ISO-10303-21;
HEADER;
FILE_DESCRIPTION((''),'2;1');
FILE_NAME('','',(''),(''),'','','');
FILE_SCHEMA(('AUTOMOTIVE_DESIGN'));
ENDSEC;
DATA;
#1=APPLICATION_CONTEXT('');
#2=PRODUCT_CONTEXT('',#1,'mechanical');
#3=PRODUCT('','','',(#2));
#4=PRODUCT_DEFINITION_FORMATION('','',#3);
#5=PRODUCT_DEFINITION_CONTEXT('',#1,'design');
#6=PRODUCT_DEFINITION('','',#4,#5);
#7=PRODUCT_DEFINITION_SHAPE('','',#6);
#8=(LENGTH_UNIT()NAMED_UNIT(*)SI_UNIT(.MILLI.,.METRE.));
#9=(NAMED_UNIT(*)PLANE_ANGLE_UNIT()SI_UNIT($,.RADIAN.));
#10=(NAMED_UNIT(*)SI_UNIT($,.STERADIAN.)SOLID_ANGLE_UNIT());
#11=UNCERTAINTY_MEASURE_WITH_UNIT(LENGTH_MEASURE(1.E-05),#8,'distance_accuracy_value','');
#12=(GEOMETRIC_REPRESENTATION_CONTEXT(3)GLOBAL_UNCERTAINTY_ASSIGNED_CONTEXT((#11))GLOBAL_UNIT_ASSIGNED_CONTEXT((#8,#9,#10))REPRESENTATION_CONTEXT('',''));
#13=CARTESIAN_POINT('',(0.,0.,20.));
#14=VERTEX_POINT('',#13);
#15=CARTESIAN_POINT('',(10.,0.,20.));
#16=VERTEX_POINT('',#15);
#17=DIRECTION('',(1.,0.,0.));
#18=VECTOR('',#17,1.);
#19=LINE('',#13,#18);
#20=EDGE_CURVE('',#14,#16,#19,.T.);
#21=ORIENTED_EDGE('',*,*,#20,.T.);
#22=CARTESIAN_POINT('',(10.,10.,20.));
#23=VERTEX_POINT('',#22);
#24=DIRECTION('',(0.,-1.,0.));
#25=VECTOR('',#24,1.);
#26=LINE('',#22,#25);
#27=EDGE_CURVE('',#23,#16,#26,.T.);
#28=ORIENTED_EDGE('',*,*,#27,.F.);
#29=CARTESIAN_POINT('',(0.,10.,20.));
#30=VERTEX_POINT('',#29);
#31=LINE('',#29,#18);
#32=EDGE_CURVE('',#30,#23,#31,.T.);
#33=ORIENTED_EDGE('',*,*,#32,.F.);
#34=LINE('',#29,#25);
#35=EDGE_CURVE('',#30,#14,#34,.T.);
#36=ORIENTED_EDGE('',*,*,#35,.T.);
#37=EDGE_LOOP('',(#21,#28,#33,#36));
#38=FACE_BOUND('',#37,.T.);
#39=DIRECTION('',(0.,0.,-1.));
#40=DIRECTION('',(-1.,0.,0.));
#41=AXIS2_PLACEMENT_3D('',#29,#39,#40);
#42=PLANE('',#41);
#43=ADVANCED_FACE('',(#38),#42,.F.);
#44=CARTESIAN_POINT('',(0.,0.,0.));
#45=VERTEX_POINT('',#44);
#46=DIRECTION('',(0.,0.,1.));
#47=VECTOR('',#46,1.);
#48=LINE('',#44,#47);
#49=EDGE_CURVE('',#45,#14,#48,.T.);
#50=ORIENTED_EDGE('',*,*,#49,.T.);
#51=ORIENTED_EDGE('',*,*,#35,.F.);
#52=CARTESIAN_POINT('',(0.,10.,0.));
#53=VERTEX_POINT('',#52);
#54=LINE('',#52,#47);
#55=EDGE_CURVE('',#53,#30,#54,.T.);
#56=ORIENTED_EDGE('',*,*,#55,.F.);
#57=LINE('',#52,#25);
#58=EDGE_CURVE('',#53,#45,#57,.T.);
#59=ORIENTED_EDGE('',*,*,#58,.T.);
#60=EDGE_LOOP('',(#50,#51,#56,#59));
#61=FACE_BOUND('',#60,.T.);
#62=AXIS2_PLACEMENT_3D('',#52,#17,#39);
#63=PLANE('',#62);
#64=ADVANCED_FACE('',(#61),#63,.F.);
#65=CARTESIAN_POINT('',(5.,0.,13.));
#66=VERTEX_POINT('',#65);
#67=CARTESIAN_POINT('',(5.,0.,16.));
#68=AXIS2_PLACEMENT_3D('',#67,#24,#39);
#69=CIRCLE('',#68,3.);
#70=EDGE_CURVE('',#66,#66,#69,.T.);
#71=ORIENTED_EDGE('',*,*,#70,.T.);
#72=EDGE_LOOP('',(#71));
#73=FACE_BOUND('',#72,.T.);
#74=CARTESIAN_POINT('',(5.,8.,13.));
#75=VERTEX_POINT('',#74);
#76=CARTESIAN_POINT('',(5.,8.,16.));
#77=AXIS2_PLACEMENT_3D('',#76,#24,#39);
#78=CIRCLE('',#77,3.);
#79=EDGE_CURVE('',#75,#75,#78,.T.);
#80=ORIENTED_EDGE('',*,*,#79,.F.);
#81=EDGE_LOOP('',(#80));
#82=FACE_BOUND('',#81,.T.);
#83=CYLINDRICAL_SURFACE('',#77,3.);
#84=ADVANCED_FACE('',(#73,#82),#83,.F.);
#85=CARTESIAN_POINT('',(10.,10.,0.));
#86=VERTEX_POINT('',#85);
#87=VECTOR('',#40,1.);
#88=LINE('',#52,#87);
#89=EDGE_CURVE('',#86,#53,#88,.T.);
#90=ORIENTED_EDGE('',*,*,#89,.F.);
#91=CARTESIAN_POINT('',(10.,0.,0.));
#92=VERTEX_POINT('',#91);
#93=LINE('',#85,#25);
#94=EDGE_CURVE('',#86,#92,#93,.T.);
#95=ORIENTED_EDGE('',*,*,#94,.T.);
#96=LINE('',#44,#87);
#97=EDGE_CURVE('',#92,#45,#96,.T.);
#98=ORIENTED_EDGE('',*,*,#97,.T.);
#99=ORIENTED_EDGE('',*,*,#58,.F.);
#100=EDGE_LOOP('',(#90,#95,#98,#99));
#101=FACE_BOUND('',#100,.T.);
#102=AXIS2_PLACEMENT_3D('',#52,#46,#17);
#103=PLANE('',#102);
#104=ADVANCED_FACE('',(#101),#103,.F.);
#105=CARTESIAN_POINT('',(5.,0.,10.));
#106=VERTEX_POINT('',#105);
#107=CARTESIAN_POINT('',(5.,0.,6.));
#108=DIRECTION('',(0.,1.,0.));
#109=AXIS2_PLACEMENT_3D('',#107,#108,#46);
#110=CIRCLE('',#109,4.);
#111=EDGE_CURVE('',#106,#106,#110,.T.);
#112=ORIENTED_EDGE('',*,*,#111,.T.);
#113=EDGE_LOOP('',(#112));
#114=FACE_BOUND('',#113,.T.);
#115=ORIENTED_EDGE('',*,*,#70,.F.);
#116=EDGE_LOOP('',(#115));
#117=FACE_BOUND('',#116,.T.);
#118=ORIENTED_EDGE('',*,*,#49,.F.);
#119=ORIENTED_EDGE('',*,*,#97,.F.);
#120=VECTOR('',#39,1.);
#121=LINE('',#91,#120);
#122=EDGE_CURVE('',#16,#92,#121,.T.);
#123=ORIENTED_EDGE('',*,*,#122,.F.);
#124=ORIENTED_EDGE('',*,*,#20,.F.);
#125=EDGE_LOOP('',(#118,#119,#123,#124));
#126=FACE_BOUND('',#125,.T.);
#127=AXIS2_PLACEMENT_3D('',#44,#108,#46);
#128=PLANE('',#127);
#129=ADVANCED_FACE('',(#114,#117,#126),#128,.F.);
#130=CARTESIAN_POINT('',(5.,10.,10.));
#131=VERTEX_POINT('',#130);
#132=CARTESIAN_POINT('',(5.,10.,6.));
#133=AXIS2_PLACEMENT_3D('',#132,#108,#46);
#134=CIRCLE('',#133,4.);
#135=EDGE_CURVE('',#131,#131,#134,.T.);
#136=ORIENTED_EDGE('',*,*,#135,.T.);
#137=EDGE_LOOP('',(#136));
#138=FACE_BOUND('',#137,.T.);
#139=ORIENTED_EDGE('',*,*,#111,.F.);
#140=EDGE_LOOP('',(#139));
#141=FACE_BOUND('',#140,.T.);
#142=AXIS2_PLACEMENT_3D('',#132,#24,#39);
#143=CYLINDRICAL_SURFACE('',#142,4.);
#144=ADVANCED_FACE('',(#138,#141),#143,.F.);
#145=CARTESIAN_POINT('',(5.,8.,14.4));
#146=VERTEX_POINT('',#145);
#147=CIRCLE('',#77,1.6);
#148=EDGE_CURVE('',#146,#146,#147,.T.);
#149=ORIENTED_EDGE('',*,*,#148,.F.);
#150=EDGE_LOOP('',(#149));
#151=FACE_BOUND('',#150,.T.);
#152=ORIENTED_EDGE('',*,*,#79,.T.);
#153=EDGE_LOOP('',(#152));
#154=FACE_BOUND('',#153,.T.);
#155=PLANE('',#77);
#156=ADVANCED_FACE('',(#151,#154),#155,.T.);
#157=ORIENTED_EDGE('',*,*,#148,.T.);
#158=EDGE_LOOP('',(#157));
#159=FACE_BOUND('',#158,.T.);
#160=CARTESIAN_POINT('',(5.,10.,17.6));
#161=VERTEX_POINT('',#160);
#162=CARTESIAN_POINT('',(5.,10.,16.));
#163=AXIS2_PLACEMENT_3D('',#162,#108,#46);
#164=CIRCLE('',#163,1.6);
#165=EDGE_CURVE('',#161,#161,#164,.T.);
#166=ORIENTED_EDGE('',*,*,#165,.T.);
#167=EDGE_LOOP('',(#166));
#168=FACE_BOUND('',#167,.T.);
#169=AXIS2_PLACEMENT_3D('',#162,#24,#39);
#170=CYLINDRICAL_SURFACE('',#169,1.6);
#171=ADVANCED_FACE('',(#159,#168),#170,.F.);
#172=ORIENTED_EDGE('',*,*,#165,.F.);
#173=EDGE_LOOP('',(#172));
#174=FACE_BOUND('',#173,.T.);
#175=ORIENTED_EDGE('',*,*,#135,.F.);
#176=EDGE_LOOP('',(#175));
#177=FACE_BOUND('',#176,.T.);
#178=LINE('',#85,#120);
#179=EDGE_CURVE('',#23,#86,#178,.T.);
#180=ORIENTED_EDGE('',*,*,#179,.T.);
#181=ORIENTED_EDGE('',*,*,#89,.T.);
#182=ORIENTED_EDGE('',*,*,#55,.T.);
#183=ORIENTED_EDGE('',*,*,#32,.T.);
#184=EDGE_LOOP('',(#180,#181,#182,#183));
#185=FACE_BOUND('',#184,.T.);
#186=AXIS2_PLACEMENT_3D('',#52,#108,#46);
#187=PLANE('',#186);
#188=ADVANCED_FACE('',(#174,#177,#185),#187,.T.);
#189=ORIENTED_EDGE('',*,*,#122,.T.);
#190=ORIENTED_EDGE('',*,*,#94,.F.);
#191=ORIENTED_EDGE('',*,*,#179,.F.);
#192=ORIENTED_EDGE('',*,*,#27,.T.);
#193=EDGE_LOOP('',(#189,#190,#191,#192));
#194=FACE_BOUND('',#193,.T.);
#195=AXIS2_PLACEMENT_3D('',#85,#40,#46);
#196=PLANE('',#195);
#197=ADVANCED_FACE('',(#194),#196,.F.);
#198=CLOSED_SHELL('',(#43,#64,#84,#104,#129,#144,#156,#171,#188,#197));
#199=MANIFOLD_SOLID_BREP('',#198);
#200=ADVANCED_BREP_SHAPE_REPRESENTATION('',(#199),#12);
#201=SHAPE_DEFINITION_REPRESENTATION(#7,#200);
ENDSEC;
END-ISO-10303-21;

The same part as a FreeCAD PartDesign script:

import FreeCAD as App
import Part
import Sketcher
from FreeCAD import Vector
Q = App.Units.Quantity

doc = App.newDocument("Part")
body = doc.addObject("PartDesign::Body", "Body")

# Sketch on XZ plane
sketch1 = doc.addObject("Sketcher::SketchObject", "Sketch")
body.addObject(sketch1)
sketch1.AttachmentSupport = (doc.XZ_Plane, [""])
sketch1.MapMode = "FlatFace"
sketch1.addGeometry([
    Part.LineSegment(Vector(0, 0, 0), Vector(0, 20, 0)),  # 0
    Part.LineSegment(Vector(0, 20, 0), Vector(10, 20, 0)),  # 1
    Part.LineSegment(Vector(10, 20, 0), Vector(10, 0, 0)),  # 2
    Part.LineSegment(Vector(10, 0, 0), Vector(0, 0, 0)),  # 3
    Part.Circle(Vector(5, 16, 0), Vector(0, 0, 1), 1.6),  # 4
    Part.Circle(Vector(5, 6, 0), Vector(0, 0, 1), 4),  # 5
], False)
sketch1.addConstraint([
    Sketcher.Constraint("Coincident", 0, 2, 1, 1),
    Sketcher.Constraint("Coincident", 1, 2, 2, 1),
    Sketcher.Constraint("Coincident", 2, 2, 3, 1),
    Sketcher.Constraint("Coincident", 3, 2, 0, 1),
    Sketcher.Constraint("Vertical", 0),
    Sketcher.Constraint("Horizontal", 1),
    Sketcher.Constraint("Vertical", 2),
    Sketcher.Constraint("Horizontal", 3),
    Sketcher.Constraint("Coincident", 3, 2, -1, 1),
    Sketcher.Constraint("Vertical", 4, 3, 5, 3),
    Sketcher.Constraint("Diameter", 5, Q("8 mm")),
    Sketcher.Constraint("Diameter", 4, Q("3.2 mm")),
    Sketcher.Constraint("DistanceX", 1, 1, 1, 2, Q("10 mm")),
    Sketcher.Constraint("DistanceY", 0, 1, 0, 2, Q("20 mm")),
    Sketcher.Constraint("DistanceX", -1, 1, 4, 3, Q("5 mm")),
    Sketcher.Constraint("DistanceY", -1, 1, 4, 3, Q("16 mm")),
    Sketcher.Constraint("DistanceY", -1, 1, 5, 3, Q("6 mm")),
])
pad1 = doc.addObject("PartDesign::Pad", "Pad")
body.addObject(pad1)
pad1.Profile = sketch1
pad1.Length = 10
pad1.Reversed = True

# Sketch on XZ plane
sketch2 = doc.addObject("Sketcher::SketchObject", "Sketch001")
body.addObject(sketch2)
sketch2.AttachmentSupport = (doc.XZ_Plane, [""])
sketch2.MapMode = "FlatFace"
sketch2.addGeometry(Part.Circle(Vector(5, 16, 0), Vector(0, 0, 1), 3), False)
sketch2.addConstraint([
    Sketcher.Constraint("Diameter", 0, Q("6 mm")),
    Sketcher.Constraint("DistanceX", -1, 1, 0, 3, Q("5 mm")),
    Sketcher.Constraint("DistanceY", -1, 1, 0, 3, Q("16 mm")),
])
pocket1 = doc.addObject("PartDesign::Pocket", "Pocket")
body.addObject(pocket1)
pocket1.Profile = sketch2
pocket1.Length = 8

doc.recompute()
